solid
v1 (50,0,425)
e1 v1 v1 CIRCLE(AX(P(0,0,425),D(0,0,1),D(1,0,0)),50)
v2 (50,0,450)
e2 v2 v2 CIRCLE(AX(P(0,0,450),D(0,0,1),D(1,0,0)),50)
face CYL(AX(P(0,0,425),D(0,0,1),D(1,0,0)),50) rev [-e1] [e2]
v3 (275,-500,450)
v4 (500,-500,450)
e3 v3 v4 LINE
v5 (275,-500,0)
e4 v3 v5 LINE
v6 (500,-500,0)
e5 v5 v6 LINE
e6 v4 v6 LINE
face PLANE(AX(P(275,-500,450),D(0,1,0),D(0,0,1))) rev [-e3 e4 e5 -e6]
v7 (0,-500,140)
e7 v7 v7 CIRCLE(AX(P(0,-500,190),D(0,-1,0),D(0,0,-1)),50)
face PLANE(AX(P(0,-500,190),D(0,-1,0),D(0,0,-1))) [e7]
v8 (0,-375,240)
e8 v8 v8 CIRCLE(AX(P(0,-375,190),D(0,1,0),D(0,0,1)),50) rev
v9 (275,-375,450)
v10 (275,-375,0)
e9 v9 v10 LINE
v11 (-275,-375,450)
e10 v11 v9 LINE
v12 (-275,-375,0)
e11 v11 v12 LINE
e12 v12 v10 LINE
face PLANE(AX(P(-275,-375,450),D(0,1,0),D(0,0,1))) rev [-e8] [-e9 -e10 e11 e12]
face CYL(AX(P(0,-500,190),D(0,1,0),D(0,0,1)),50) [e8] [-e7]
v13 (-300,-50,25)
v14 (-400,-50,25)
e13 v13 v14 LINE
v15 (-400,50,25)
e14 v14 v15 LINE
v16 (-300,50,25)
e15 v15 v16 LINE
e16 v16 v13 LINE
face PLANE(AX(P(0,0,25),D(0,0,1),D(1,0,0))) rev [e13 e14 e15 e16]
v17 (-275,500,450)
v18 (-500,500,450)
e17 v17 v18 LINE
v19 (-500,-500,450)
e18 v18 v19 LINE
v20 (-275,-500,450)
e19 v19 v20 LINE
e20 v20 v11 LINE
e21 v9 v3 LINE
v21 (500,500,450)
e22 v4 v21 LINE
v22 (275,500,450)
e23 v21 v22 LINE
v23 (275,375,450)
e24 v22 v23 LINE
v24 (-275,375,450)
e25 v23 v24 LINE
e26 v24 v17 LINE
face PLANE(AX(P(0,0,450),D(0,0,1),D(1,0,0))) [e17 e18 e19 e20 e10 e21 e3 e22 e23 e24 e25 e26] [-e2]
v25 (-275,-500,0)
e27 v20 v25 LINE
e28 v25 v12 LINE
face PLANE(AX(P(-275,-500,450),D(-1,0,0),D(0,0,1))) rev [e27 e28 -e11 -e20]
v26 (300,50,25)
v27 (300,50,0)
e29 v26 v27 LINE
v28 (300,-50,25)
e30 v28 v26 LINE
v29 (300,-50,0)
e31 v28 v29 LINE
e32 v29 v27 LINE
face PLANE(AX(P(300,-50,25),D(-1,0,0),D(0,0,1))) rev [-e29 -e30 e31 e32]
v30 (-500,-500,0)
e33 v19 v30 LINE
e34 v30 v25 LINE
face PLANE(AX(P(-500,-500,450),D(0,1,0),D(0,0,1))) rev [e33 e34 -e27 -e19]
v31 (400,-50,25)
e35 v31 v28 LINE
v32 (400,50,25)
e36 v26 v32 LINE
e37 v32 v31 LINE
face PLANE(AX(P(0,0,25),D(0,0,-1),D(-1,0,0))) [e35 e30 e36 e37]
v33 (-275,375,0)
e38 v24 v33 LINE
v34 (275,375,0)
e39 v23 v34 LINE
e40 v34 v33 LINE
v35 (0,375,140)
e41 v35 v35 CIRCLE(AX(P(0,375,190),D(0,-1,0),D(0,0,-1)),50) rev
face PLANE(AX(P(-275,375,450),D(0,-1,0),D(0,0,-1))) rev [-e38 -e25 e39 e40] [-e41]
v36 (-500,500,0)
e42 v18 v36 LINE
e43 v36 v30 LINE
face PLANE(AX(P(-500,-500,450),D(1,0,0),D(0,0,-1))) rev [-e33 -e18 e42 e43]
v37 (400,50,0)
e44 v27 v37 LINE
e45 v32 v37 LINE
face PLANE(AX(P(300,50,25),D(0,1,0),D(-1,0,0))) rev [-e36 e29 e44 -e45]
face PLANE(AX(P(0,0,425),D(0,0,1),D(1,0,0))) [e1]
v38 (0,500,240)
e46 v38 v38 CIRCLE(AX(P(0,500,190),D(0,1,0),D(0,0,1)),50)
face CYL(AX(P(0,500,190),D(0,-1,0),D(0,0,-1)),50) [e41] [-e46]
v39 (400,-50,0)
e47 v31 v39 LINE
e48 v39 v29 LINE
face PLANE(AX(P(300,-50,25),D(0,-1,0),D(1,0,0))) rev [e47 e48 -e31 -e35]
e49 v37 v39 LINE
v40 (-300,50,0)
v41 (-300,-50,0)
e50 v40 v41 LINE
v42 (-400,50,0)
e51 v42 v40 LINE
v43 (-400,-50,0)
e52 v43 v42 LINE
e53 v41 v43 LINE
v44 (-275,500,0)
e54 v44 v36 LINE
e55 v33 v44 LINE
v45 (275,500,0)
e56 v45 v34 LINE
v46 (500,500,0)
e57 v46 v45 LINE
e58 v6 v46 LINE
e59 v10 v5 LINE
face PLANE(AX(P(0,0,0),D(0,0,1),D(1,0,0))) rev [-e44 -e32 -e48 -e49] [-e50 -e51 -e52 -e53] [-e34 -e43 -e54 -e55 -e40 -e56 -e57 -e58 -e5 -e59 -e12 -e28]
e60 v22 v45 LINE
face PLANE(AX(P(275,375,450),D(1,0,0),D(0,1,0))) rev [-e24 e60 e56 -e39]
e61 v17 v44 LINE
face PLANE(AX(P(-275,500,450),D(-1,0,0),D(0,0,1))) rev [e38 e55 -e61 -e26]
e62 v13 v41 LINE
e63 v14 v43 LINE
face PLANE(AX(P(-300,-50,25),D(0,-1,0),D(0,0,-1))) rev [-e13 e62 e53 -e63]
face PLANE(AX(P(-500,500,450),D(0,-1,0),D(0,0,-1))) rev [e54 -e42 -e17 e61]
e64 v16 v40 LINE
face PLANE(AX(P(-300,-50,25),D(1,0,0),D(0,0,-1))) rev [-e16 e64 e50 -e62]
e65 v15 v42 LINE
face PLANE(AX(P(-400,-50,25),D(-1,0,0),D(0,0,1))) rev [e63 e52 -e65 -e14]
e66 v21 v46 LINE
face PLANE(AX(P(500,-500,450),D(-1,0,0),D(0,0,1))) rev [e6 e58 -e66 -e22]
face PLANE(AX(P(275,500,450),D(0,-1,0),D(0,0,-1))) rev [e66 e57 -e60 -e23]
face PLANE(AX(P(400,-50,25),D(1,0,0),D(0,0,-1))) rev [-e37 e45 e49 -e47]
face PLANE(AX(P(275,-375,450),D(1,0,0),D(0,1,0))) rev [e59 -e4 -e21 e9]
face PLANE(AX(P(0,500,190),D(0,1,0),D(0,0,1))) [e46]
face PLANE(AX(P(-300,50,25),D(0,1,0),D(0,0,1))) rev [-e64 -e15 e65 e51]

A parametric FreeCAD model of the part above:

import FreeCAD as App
import Part
import Sketcher

doc = App.newDocument("Part")
body = doc.addObject("PartDesign::Body", "Body")

# Sketch on XY plane
sketch1 = body.newObject("Sketcher::SketchObject", "Sketch")
sketch1.AttachmentSupport = (doc.getObject("XY_Plane"), [""])
sketch1.MapMode = "FlatFace"
sketch1.addGeometry([
    Part.LineSegment(App.Vector(-275, 375, 0), App.Vector(-275, 500, 0)),  # 0
    Part.LineSegment(App.Vector(-275, 500, 0), App.Vector(-500, 500, 0)),  # 1
    Part.LineSegment(App.Vector(-500, 500, 0), App.Vector(-500, -500, 0)),  # 2
    Part.LineSegment(App.Vector(-500, -500, 0), App.Vector(-275, -500, 0)),  # 3
    Part.LineSegment(App.Vector(-275, -500, 0), App.Vector(-275, -375, 0)),  # 4
    Part.LineSegment(App.Vector(-275, -375, 0), App.Vector(275, -375, 0)),  # 5
    Part.LineSegment(App.Vector(275, -375, 0), App.Vector(275, -500, 0)),  # 6
    Part.LineSegment(App.Vector(275, -500, 0), App.Vector(500, -500, 0)),  # 7
    Part.LineSegment(App.Vector(500, -500, 0), App.Vector(500, 500, 0)),  # 8
    Part.LineSegment(App.Vector(500, 500, 0), App.Vector(275, 500, 0)),  # 9
    Part.LineSegment(App.Vector(275, 500, 0), App.Vector(275, 375, 0)),  # 10
    Part.LineSegment(App.Vector(275, 375, 0), App.Vector(-275, 375, 0)),  # 11
], False)
sketch1.addConstraint([
    Sketcher.Constraint("Coincident", 0, 2, 1, 1),
    Sketcher.Constraint("Coincident", 1, 2, 2, 1),
    Sketcher.Constraint("Coincident", 2, 2, 3, 1),
    Sketcher.Constraint("Coincident", 3, 2, 4, 1),
    Sketcher.Constraint("Coincident", 4, 2, 5, 1),
    Sketcher.Constraint("Coincident", 5, 2, 6, 1),
    Sketcher.Constraint("Coincident", 6, 2, 7, 1),
    Sketcher.Constraint("Coincident", 7, 2, 8, 1),
    Sketcher.Constraint("Coincident", 8, 2, 9, 1),
    Sketcher.Constraint("Coincident", 9, 2, 10, 1),
    Sketcher.Constraint("Coincident", 10, 2, 11, 1),
    Sketcher.Constraint("Coincident", 11, 2, 0, 1),
    Sketcher.Constraint("Vertical", 0),
    Sketcher.Constraint("Horizontal", 1),
    Sketcher.Constraint("Vertical", 2),
    Sketcher.Constraint("Horizontal", 3),
    Sketcher.Constraint("Vertical", 4),
    Sketcher.Constraint("Horizontal", 5),
    Sketcher.Constraint("Vertical", 6),
    Sketcher.Constraint("Horizontal", 7),
    Sketcher.Constraint("Vertical", 8),
    Sketcher.Constraint("Horizontal", 9),
    Sketcher.Constraint("Vertical", 10),
    Sketcher.Constraint("Horizontal", 11),
    Sketcher.Constraint("Symmetric", 0, 2, 6, 2, -1, 1),
    Sketcher.Constraint("Symmetric", 2, 2, 8, 2, -1, 1),
    Sketcher.Constraint("Symmetric", 4, 2, 10, 2, -1, 1),
    Sketcher.Constraint("Symmetric", 3, 2, 6, 2, -2),
    Sketcher.Constraint("DistanceX", 1, 2, 1, 1, 225.0),
    Sketcher.Constraint("DistanceX", 5, 1, 5, 2, 550.0),
    Sketcher.Constraint("DistanceY", 0, 1, 0, 2, 125.0),
    Sketcher.Constraint("DistanceY", 2, 2, 2, 1, 1000.0),
])
pad1 = body.newObject("PartDesign::Pad", "Pad")
pad1.Profile = sketch1
pad1.Length = 450

# Sketch on XZ plane
sketch2 = body.newObject("Sketcher::SketchObject", "Sketch001")
sketch2.AttachmentSupport = (doc.getObject("XZ_Plane"), [""])
sketch2.MapMode = "FlatFace"
sketch2.AttachmentOffset = App.Placement(App.Vector(0, 0, 375), App.Rotation())
sketch2.addGeometry(Part.Circle(App.Vector(0, 190, 0), App.Vector(0, 0, 1), 50), False)
sketch2.addConstraint([
    Sketcher.Constraint("PointOnObject", 0, 3, -2),
    Sketcher.Constraint("Diameter", 0, 100.0),
    Sketcher.Constraint("DistanceY", -1, 1, 0, 3, 190.0),
])
pad2 = body.newObject("PartDesign::Pad", "Pad001")
pad2.Profile = sketch2
pad2.Length = 125

# Sketch on XZ plane
sketch3 = body.newObject("Sketcher::SketchObject", "Sketch002")
sketch3.AttachmentSupport = (doc.getObject("XZ_Plane"), [""])
sketch3.MapMode = "FlatFace"
sketch3.AttachmentOffset = App.Placement(App.Vector(0, 0, -375), App.Rotation())
sketch3.addGeometry(Part.Circle(App.Vector(0, 190, 0), App.Vector(0, 0, 1), 50), False)
sketch3.addConstraint([
    Sketcher.Constraint("PointOnObject", 0, 3, -2),
    Sketcher.Constraint("Diameter", 0, 100.0),
    Sketcher.Constraint("DistanceY", -1, 1, 0, 3, 190.0),
])
pad3 = body.newObject("PartDesign::Pad", "Pad002")
pad3.Profile = sketch3
pad3.Length = 125
pad3.Reversed = True

# Sketch on XY plane
sketch4 = body.newObject("Sketcher::SketchObject", "Sketch003")
sketch4.AttachmentSupport = (doc.getObject("XY_Plane"), [""])
sketch4.MapMode = "FlatFace"
sketch4.AttachmentOffset = App.Placement(App.Vector(0, 0, 450), App.Rotation())
sketch4.addGeometry(Part.Circle(App.Vector(0, 0, 0), App.Vector(0, 0, 1), 50), False)
sketch4.addConstraint([
    Sketcher.Constraint("Coincident", 0, 3, -1, 1),
    Sketcher.Constraint("Diameter", 0, 100.0),
])
pocket1 = body.newObject("PartDesign::Pocket", "Pocket")
pocket1.Profile = sketch4
pocket1.Length = 25

# Sketch on XY plane
sketch5 = body.newObject("Sketcher::SketchObject", "Sketch004")
sketch5.AttachmentSupport = (doc.getObject("XY_Plane"), [""])
sketch5.MapMode = "FlatFace"
sketch5.addGeometry([
    Part.LineSegment(App.Vector(-300, 50, 0), App.Vector(-300, -50, 0)),  # 0
    Part.LineSegment(App.Vector(-300, -50, 0), App.Vector(-400, -50, 0)),  # 1
    Part.LineSegment(App.Vector(-400, -50, 0), App.Vector(-400, 50, 0)),  # 2
    Part.LineSegment(App.Vector(-400, 50, 0), App.Vector(-300, 50, 0)),  # 3
    Part.LineSegment(App.Vector(400, 50, 0), App.Vector(400, -50, 0)),  # 4
    Part.LineSegment(App.Vector(400, -50, 0), App.Vector(300, -50, 0)),  # 5
    Part.LineSegment(App.Vector(300, -50, 0), App.Vector(300, 50, 0)),  # 6
    Part.LineSegment(App.Vector(300, 50, 0), App.Vector(400, 50, 0)),  # 7
], False)
sketch5.addConstraint([
    Sketcher.Constraint("Coincident", 0, 2, 1, 1),
    Sketcher.Constraint("Coincident", 1, 2, 2, 1),
    Sketcher.Constraint("Coincident", 2, 2, 3, 1),
    Sketcher.Constraint("Coincident", 3, 2, 0, 1),
    Sketcher.Constraint("Coincident", 4, 2, 5, 1),
    Sketcher.Constraint("Coincident", 5, 2, 6, 1),
    Sketcher.Constraint("Coincident", 6, 2, 7, 1),
    Sketcher.Constraint("Coincident", 7, 2, 4, 1),
    Sketcher.Constraint("Vertical", 0),
    Sketcher.Constraint("Horizontal", 1),
    Sketcher.Constraint("Vertical", 2),
    Sketcher.Constraint("Horizontal", 3),
    Sketcher.Constraint("Vertical", 4),
    Sketcher.Constraint("Horizontal", 5),
    Sketcher.Constraint("Vertical", 6),
    Sketcher.Constraint("Horizontal", 7),
    Sketcher.Constraint("Symmetric", 2, 2, 4, 2, -1, 1),
    Sketcher.Constraint("Symmetric", 0, 2, 6, 2, -1, 1),
    Sketcher.Constraint("Horizontal", 1, 2, 4, 2),
    Sketcher.Constraint("Equal", 7, 0),
    Sketcher.Constraint("DistanceX", 1, 2, 1, 1, 100.0),
    Sketcher.Constraint("DistanceX", 0, 2, -1, 1, 300.0),
])
pocket2 = body.newObject("PartDesign::Pocket", "Pocket001")
pocket2.Profile = sketch5
pocket2.Length = 25
pocket2.Reversed = True

doc.recompute()
